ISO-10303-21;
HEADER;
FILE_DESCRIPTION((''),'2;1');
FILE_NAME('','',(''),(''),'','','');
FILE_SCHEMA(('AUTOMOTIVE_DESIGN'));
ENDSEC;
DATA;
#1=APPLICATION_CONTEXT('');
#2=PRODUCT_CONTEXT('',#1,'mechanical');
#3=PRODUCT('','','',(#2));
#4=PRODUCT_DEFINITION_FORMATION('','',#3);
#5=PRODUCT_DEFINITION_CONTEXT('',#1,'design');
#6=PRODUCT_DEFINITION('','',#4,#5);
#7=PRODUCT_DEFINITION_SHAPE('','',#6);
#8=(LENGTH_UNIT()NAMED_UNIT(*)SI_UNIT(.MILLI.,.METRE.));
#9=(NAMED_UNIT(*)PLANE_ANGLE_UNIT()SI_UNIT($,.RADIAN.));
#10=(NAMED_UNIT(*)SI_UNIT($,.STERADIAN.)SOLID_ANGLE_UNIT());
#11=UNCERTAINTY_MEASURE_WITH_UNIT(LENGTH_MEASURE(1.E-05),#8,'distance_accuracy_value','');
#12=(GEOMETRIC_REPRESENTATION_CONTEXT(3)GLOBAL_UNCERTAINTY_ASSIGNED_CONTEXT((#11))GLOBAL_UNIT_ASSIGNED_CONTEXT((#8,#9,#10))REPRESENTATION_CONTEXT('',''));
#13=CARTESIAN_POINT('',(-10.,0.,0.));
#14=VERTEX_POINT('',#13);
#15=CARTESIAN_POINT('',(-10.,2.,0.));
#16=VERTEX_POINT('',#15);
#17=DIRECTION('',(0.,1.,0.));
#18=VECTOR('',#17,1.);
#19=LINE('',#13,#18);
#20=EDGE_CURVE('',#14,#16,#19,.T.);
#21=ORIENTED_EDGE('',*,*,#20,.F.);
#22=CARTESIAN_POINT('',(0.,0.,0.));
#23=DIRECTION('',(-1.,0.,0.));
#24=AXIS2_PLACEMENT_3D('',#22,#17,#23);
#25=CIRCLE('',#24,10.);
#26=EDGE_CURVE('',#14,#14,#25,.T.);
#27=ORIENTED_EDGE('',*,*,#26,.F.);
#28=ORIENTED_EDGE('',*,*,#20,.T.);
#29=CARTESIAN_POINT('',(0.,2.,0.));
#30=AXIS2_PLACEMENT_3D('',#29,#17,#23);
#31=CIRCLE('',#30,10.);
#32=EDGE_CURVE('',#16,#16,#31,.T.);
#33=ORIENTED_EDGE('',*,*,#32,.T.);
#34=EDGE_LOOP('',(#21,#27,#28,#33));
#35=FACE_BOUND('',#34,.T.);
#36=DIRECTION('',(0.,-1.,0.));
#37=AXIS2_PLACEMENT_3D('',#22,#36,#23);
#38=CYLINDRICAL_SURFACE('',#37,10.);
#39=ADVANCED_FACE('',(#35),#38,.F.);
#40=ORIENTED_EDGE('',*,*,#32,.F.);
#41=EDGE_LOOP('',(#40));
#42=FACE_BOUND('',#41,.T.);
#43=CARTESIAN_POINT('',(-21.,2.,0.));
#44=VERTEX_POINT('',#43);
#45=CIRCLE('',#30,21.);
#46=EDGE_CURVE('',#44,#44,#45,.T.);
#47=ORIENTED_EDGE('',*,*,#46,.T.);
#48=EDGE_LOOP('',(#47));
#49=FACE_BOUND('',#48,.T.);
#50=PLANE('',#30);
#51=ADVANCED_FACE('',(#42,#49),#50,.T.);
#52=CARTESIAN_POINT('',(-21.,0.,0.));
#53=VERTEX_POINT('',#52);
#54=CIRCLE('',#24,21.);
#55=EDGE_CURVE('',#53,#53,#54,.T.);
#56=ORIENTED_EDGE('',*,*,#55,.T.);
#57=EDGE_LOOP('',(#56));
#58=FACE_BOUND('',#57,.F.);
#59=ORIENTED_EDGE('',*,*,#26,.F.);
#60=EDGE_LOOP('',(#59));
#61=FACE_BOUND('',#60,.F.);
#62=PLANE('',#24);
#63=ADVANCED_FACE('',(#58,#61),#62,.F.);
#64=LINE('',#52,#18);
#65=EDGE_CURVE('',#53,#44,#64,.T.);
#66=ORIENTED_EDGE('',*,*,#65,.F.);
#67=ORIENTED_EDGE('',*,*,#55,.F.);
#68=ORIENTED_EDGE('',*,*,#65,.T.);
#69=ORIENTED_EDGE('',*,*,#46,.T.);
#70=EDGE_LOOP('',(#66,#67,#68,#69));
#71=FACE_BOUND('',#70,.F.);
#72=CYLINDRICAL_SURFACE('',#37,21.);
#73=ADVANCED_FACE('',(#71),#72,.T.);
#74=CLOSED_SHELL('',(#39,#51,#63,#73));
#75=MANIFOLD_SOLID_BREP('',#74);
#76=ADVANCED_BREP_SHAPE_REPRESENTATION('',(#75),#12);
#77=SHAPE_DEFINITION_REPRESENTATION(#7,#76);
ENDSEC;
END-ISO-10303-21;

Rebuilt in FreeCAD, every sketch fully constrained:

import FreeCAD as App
import Part
import Sketcher

doc = App.newDocument("Part")
body = doc.addObject("PartDesign::Body", "Body")

sketch1 = body.newObject("Sketcher::SketchObject", "Sketch")
sketch1.AttachmentSupport = (doc.getObject("XZ_Plane"), [""])
sketch1.MapMode = "FlatFace"
sketch1.addGeometry([
    Part.Circle(App.Vector(0, 0, 0), App.Vector(0, 0, 1), 21),
    Part.Circle(App.Vector(0, 0, 0), App.Vector(0, 0, 1), 10),
], False)
sketch1.addConstraint([
    Sketcher.Constraint("Coincident", 0, 3, -1, 1),
    Sketcher.Constraint("Coincident", 1, 3, -1, 1),
    Sketcher.Constraint("Diameter", 0, 42.0),
    Sketcher.Constraint("Diameter", 1, 20.0),
])
pad1 = body.newObject("PartDesign::Pad", "Pad")
pad1.Profile = sketch1
pad1.Length = 2
pad1.Reversed = True

doc.recompute()
